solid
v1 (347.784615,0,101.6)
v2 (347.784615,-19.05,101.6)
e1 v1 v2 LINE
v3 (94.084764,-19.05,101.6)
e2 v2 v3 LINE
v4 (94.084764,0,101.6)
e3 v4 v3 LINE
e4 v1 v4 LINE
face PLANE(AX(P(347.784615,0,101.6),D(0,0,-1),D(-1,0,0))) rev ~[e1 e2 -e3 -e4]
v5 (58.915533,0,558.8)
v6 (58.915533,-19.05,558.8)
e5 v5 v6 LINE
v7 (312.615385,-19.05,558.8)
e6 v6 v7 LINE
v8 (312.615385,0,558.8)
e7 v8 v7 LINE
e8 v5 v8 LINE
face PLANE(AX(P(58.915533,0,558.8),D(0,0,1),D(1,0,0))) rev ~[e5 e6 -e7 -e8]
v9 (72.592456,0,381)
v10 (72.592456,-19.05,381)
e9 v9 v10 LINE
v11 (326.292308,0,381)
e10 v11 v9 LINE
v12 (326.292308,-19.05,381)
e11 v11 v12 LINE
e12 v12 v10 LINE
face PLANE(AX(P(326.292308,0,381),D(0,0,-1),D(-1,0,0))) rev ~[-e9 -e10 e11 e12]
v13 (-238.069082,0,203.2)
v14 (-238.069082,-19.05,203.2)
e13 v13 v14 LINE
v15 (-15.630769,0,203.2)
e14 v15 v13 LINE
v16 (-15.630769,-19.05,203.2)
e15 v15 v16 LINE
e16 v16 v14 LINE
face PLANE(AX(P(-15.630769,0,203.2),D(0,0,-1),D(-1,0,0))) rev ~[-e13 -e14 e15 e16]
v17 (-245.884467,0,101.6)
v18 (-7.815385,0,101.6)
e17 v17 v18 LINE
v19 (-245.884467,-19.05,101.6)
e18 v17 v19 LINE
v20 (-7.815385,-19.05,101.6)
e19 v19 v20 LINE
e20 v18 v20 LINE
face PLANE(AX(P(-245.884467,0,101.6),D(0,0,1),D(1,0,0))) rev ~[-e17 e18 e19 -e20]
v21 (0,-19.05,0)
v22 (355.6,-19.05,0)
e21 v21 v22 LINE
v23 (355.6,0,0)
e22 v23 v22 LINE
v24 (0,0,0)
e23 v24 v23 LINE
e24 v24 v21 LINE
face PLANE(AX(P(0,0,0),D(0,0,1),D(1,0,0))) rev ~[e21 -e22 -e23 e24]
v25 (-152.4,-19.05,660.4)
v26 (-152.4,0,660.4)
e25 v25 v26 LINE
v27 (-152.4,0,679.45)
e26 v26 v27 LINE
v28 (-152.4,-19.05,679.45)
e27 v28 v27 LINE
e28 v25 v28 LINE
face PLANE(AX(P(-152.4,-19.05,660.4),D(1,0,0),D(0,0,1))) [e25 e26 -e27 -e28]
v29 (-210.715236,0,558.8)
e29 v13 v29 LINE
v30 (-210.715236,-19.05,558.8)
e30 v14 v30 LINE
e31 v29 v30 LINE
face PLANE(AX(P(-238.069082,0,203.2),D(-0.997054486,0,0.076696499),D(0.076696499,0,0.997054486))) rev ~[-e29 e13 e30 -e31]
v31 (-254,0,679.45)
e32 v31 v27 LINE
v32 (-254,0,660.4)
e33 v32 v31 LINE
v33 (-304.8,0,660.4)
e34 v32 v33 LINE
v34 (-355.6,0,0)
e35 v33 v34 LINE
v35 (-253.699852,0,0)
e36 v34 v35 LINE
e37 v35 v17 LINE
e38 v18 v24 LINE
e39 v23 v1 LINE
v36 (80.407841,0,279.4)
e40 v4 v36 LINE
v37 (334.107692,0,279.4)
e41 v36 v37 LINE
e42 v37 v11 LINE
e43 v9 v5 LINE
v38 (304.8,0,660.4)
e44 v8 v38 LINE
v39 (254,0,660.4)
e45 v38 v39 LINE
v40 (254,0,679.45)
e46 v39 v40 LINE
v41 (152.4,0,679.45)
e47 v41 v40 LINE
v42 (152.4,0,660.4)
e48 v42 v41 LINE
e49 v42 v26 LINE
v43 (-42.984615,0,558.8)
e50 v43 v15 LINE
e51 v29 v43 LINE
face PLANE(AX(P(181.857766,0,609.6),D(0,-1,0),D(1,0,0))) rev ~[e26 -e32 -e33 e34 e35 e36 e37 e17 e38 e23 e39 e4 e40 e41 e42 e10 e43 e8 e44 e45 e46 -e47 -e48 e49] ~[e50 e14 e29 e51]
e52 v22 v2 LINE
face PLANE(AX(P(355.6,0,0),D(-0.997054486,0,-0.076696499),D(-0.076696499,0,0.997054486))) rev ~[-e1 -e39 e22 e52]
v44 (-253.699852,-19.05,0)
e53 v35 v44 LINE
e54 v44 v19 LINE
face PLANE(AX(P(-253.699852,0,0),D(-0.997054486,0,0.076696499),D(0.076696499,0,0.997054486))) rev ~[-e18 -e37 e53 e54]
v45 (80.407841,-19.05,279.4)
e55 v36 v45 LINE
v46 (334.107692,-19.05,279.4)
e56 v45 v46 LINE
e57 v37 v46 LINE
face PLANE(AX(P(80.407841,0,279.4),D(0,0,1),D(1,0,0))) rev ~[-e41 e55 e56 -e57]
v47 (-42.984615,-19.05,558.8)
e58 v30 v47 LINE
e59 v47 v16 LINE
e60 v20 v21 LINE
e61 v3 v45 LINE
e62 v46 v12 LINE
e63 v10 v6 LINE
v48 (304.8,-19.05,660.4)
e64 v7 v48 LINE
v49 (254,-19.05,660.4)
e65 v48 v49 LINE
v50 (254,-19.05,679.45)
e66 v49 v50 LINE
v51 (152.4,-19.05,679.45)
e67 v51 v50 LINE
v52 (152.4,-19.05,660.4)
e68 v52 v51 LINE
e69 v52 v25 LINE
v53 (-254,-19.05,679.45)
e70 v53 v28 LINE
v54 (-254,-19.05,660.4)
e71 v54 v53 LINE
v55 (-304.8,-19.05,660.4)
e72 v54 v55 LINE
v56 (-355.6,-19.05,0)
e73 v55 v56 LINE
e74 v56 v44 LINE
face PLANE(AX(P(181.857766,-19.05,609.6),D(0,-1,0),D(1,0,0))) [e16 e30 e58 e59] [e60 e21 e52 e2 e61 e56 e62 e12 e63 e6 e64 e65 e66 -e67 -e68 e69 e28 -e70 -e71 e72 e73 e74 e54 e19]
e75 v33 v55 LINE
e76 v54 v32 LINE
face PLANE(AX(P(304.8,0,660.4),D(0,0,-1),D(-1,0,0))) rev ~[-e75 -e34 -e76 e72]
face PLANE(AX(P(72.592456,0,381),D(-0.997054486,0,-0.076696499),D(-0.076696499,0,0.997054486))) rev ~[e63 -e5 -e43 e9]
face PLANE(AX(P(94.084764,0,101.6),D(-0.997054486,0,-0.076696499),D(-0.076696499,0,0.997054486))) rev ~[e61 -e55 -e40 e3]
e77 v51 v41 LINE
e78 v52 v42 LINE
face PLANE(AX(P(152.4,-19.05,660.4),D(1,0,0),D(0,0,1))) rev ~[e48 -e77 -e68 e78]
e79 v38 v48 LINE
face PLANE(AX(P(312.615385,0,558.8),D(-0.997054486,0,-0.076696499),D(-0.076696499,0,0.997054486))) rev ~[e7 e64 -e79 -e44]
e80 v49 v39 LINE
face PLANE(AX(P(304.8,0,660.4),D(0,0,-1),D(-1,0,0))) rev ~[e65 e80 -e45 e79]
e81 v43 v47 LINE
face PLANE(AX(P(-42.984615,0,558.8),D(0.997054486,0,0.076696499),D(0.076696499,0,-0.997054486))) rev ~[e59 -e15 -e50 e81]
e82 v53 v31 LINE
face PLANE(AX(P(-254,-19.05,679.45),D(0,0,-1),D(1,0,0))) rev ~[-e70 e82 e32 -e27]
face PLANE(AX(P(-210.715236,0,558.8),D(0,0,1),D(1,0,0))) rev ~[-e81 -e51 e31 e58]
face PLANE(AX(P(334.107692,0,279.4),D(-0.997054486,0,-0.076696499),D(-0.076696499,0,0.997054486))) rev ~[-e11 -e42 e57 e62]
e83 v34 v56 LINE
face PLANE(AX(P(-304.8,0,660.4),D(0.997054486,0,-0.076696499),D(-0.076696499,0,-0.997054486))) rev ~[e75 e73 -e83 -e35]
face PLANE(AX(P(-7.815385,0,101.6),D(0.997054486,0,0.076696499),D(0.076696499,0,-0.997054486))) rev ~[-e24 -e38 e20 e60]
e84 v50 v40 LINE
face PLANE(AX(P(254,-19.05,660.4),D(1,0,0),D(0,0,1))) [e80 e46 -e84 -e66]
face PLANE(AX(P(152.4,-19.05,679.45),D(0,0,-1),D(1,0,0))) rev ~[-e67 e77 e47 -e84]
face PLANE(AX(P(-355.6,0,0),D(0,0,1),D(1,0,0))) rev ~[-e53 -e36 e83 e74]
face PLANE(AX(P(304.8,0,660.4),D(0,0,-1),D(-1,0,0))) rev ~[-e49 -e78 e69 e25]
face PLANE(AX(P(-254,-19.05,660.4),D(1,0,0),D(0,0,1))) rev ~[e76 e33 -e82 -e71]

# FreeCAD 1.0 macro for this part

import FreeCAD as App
import Part
import Sketcher
from FreeCAD import Vector
Q = App.Units.Quantity


def add_polygon(sketch, points):
    """Adds a closed chain of lines whose ends are joined by coincident constraints."""
    first, n = sketch.GeometryCount, len(points)
    for a, b in zip(points, points[1:] + points[:1]):
        sketch.addGeometry(Part.LineSegment(App.Vector(*a, 0), App.Vector(*b, 0)), False)
    for i in range(n):
        sketch.addConstraint(Sketcher.Constraint("Coincident", first + i, 2, first + (i + 1) % n, 1))

doc = App.newDocument("Part")
params = doc.addObject("Spreadsheet::Sheet", "Params")
for row, (alias, value) in enumerate([
    ("sketch1_width", "24 in"),
    ("sketch1_width2", "14 in"),
    ("pad1_length", "0.75 in"),
    ("sketch2_width", "4 in"),
    ("sketch2_height", "0.75 in"),
    ("pad2_length", "0.75 in"),
], start=1):
    params.set(f"A{row}", alias)
    params.set(f"B{row}", "=" + value)
    params.setAlias(f"B{row}", alias)

body = doc.addObject("PartDesign::Body", "Body")

# Sketch on XZ plane
sketch1 = doc.addObject("Sketcher::SketchObject", "Sketch")
body.addObject(sketch1)
sketch1.AttachmentSupport = (doc.XZ_Plane, [""])
sketch1.MapMode = "FlatFace"
add_polygon(sketch1, [(305, 660), (-305, 660), (-356, 0), (-254, 0), (-246, 102), (-8, 102), (0, 0), (356, 0), (348, 102), (94, 102), (80, 279), (334, 279), (326, 381), (73, 381), (59, 559), (313, 559)])  # lines 0-15
add_polygon(sketch1, [(-43, 559), (-16, 203), (-238, 203), (-211, 559)])  # lines 16-19
sketch1.addConstraint(Sketcher.Constraint("Horizontal", 0))
sketch1.addConstraint(Sketcher.Constraint("Horizontal", 2))
sketch1.addConstraint(Sketcher.Constraint("Horizontal", 4))
sketch1.addConstraint(Sketcher.Constraint("Horizontal", 6))
sketch1.addConstraint(Sketcher.Constraint("Horizontal", 8))
sketch1.addConstraint(Sketcher.Constraint("Horizontal", 10))
sketch1.addConstraint(Sketcher.Constraint("Horizontal", 12))
sketch1.addConstraint(Sketcher.Constraint("Horizontal", 14))
sketch1.addConstraint(Sketcher.Constraint("Horizontal", 17))
sketch1.addConstraint(Sketcher.Constraint("Horizontal", 19))
sketch1.addConstraint(Sketcher.Constraint("Coincident", 5, 2, -1, 1))
sketch1.addConstraint(Sketcher.Constraint("Symmetric", 1, 2, 6, 2, -1, 1))
sketch1.addConstraint(Sketcher.Constraint("Parallel", 1, 3))
sketch1.addConstraint(Sketcher.Constraint("Parallel", 5, 7))
sketch1.addConstraint(Sketcher.Constraint("Parallel", 7, 9))
sketch1.addConstraint(Sketcher.Constraint("Parallel", 9, 11))
sketch1.addConstraint(Sketcher.Constraint("Parallel", 11, 13))
sketch1.addConstraint(Sketcher.Constraint("Parallel", 13, 15))
sketch1.addConstraint(Sketcher.Constraint("Parallel", 15, 16))
sketch1.addConstraint(Sketcher.Constraint("Parallel", 3, 18))
sketch1.addConstraint(Sketcher.Constraint("Horizontal", 4, 2, 7, 2))
sketch1.addConstraint(Sketcher.Constraint("Horizontal", 14, 2, 18, 2))
sketch1.addConstraint(Sketcher.Constraint("Equal", 8, 10))
sketch1.addConstraint(Sketcher.Constraint("Equal", 10, 12))
sketch1.addConstraint(Sketcher.Constraint("Equal", 12, 14))
sketch1.addConstraint(Sketcher.Constraint("Equal", 3, 5))
sketch1.addConstraint(Sketcher.Constraint("Equal", 7, 11))
sketch1.addConstraint(Sketcher.Constraint("Equal", 9, 13))
sketch1.addConstraint(Sketcher.Constraint("Equal", 11, 15))
sketch1.addConstraint(Sketcher.Constraint("DistanceX", 0, 2, 0, 1, Q("24 in")))
sketch1.addConstraint(Sketcher.Constraint("DistanceX", 6, 1, 6, 2, Q("14 in")))
sketch1.addConstraint(Sketcher.Constraint("DistanceY", -1, 1, 0, 2, Q("26 in")))
sketch1.addConstraint(Sketcher.Constraint("DistanceY", -1, 1, 3, 2, Q("4 in")))
sketch1.addConstraint(Sketcher.Constraint("DistanceY", -1, 1, 16, 2, Q("8 in")))
sketch1.addConstraint(Sketcher.Constraint("DistanceX", 2, 1, 2, 2, 101.900148))
sketch1.addConstraint(Sketcher.Constraint("DistanceX", 8, 2, 8, 1, 253.699852))
sketch1.addConstraint(Sketcher.Constraint("DistanceX", 19, 1, 19, 2, 167.730621))
sketch1.addConstraint(Sketcher.Constraint("DistanceX", 16, 2, -1, 1, 15.630769))
sketch1.setExpression("Constraints[49]", "Params.sketch1_width")
sketch1.setExpression("Constraints[50]", "Params.sketch1_width2")
pad1 = doc.addObject("PartDesign::Pad", "Pad")
body.addObject(pad1)
pad1.Profile = sketch1
pad1.setExpression("Length", "Params.pad1_length")

# Sketch on XZ plane
sketch2 = doc.addObject("Sketcher::SketchObject", "Sketch001")
body.addObject(sketch2)
sketch2.AttachmentSupport = (doc.XZ_Plane, [""])
sketch2.MapMode = "FlatFace"
sketch2.AttachmentOffset = App.Placement(Vector(0, 0, 0.75 * 25.4), App.Rotation())
add_polygon(sketch2, [(152, 679), (152, 660), (254, 660), (254, 679)])  # lines 0-3
add_polygon(sketch2, [(-254, 679), (-254, 660), (-152, 660), (-152, 679)])  # lines 4-7
sketch2.addConstraint(Sketcher.Constraint("Vertical", 0))
sketch2.addConstraint(Sketcher.Constraint("Horizontal", 1))
sketch2.addConstraint(Sketcher.Constraint("Vertical", 2))
sketch2.addConstraint(Sketcher.Constraint("Horizontal", 3))
sketch2.addConstraint(Sketcher.Constraint("Vertical", 4))
sketch2.addConstraint(Sketcher.Constraint("Horizontal", 5))
sketch2.addConstraint(Sketcher.Constraint("Vertical", 6))
sketch2.addConstraint(Sketcher.Constraint("Horizontal", 7))
sketch2.addConstraint(Sketcher.Constraint("Symmetric", 1, 2, 4, 2, -2))
sketch2.addConstraint(Sketcher.Constraint("Symmetric", 3, 2, 6, 2, -2))
sketch2.addConstraint(Sketcher.Constraint("DistanceX", 1, 1, 1, 2, Q("4 in")))
sketch2.addConstraint(Sketcher.Constraint("DistanceX", -1, 1, 0, 2, Q("6 in")))
sketch2.addConstraint(Sketcher.Constraint("DistanceY", -1, 1, 0, 2, Q("26 in")))
sketch2.addConstraint(Sketcher.Constraint("DistanceY", 0, 2, 0, 1, Q("0.75 in")))
sketch2.setExpression("Constraints[18]", "Params.sketch2_width")
sketch2.setExpression("Constraints[21]", "Params.sketch2_height")
pad2 = doc.addObject("PartDesign::Pad", "Pad001")
body.addObject(pad2)
pad2.Profile = sketch2
pad2.setExpression("Length", "Params.pad2_length")
pad2.Reversed = True

doc.recompute()
